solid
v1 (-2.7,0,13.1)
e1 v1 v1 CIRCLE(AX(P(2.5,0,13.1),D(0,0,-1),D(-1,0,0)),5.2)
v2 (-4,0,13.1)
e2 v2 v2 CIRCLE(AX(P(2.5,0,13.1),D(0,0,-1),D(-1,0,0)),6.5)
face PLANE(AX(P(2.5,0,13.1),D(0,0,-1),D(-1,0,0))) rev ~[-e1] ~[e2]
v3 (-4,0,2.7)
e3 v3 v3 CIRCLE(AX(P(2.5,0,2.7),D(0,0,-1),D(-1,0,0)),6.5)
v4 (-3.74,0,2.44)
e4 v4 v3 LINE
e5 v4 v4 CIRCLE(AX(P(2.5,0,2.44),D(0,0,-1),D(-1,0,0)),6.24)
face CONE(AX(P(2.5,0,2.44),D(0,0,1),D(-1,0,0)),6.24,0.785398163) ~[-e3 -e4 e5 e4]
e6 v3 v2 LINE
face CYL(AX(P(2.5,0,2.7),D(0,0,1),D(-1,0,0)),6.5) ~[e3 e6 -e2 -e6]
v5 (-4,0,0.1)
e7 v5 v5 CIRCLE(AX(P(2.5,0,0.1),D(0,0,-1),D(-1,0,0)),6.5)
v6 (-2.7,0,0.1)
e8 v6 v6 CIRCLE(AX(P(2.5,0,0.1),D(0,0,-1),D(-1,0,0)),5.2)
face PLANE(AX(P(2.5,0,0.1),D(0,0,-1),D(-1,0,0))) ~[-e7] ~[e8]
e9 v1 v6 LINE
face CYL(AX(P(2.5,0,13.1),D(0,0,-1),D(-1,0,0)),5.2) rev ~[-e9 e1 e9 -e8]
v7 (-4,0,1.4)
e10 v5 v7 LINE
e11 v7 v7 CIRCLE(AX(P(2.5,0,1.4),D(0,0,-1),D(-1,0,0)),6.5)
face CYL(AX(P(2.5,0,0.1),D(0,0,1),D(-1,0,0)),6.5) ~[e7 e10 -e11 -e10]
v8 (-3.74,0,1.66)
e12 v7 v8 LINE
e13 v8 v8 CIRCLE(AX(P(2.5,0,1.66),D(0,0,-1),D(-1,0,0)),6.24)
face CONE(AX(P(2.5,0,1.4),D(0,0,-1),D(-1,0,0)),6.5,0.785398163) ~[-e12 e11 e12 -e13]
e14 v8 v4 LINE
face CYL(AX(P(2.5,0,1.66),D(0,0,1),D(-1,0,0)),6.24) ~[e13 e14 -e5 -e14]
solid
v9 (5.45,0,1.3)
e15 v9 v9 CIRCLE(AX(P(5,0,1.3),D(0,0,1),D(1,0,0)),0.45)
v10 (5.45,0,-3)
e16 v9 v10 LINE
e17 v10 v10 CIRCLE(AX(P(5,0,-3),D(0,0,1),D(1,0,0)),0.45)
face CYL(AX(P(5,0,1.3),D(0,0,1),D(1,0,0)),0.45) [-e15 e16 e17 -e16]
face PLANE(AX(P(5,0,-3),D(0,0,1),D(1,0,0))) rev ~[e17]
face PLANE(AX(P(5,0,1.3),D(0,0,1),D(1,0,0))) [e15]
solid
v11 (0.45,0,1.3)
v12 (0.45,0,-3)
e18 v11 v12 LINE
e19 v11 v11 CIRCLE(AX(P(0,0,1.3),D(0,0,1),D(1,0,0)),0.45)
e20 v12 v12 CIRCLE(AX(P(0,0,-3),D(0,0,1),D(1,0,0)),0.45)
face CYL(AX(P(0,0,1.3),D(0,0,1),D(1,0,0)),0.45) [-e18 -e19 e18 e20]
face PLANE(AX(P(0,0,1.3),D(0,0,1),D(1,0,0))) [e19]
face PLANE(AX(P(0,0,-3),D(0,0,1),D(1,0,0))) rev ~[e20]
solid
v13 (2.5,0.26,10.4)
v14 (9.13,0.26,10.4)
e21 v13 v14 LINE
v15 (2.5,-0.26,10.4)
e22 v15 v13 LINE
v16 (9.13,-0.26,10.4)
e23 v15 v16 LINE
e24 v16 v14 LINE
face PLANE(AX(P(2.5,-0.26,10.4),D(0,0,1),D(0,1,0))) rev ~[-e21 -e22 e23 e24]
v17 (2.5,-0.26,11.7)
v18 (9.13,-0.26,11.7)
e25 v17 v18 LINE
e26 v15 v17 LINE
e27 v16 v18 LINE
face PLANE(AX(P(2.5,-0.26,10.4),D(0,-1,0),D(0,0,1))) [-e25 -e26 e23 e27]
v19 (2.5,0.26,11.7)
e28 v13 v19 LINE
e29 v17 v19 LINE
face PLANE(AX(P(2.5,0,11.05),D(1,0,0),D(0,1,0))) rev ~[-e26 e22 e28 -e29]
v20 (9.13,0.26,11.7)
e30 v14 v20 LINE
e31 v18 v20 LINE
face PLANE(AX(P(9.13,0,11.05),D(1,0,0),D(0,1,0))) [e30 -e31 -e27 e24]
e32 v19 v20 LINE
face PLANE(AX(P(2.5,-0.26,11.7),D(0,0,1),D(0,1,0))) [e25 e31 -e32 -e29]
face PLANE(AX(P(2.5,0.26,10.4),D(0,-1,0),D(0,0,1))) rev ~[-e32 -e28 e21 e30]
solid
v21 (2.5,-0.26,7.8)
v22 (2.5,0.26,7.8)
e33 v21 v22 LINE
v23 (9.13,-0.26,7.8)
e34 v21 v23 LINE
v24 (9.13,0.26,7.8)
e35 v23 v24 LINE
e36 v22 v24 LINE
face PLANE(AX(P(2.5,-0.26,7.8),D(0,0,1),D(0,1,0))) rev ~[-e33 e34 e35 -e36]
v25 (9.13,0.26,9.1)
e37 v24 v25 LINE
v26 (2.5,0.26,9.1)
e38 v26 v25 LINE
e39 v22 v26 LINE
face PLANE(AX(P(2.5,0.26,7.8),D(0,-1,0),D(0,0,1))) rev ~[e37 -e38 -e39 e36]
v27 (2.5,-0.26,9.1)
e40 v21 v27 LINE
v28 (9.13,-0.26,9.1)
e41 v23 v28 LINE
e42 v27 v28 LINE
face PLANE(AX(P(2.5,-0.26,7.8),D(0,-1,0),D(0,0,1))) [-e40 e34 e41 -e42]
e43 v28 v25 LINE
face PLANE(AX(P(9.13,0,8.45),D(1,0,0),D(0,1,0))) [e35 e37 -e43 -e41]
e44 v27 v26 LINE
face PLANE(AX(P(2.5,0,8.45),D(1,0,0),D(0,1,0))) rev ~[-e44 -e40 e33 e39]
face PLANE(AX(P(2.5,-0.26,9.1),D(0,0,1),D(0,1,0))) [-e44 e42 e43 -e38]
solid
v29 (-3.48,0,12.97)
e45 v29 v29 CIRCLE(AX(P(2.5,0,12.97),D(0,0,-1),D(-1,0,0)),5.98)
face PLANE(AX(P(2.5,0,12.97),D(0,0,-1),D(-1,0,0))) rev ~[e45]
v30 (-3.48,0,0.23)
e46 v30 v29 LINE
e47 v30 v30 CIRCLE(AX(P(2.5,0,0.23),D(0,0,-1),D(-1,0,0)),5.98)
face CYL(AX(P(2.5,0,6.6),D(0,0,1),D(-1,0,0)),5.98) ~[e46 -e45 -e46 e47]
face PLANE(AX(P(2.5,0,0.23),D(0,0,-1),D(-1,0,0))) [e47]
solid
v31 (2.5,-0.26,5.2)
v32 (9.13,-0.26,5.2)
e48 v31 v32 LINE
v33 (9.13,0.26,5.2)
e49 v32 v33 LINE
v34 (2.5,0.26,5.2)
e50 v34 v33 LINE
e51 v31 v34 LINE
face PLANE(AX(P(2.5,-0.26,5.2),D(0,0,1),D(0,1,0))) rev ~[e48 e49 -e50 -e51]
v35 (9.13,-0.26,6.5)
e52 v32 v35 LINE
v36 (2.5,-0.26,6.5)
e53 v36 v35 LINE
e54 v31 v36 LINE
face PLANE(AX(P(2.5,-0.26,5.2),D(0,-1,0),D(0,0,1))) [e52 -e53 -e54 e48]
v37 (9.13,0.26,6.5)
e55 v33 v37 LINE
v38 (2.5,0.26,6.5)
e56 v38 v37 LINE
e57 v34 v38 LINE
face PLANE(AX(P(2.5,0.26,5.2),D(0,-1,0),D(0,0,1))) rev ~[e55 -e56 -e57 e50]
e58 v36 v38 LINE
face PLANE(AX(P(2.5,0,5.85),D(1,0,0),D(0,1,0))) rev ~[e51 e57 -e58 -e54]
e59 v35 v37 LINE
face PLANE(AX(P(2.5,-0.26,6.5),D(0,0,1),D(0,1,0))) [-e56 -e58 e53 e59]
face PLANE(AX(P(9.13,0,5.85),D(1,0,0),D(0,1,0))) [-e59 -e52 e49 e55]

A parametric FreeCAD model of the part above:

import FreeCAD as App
import Part
import Sketcher
from FreeCAD import Vector


def add_polygon(sketch, points):
    """Adds a closed chain of lines whose ends are joined by coincident constraints."""
    first, n = sketch.GeometryCount, len(points)
    for a, b in zip(points, points[1:] + points[:1]):
        sketch.addGeometry(Part.LineSegment(App.Vector(*a, 0), App.Vector(*b, 0)), False)
    for i in range(n):
        sketch.addConstraint(Sketcher.Constraint("Coincident", first + i, 2, first + (i + 1) % n, 1))

doc = App.newDocument("Part")
body = doc.addObject("PartDesign::Body", "Body")

sketch1 = body.newObject("Sketcher::SketchObject", "Sketch")
sketch1.AttachmentSupport = (doc.getObject("XZ_Plane"), [""])
sketch1.MapMode = "FlatFace"
add_polygon(sketch1, [(-4, 1.4), (-4, 0.1), (-2.7, 0.1), (-2.7, 13.1), (-4, 13.1), (-4, 2.7), (-3.74, 2.44), (-3.74, 1.66)])
sketch1.addGeometry(Part.LineSegment(Vector(2.5, 13.1, 0), Vector(2.5, 0.1, 0)), True)
sketch1.addConstraint(Sketcher.Constraint("Vertical", 0))
sketch1.addConstraint(Sketcher.Constraint("Horizontal", 1))
sketch1.addConstraint(Sketcher.Constraint("Vertical", 2))
sketch1.addConstraint(Sketcher.Constraint("Horizontal", 3))
sketch1.addConstraint(Sketcher.Constraint("Vertical", 4))
sketch1.addConstraint(Sketcher.Constraint("Vertical", 6))
sketch1.addConstraint(Sketcher.Constraint("Vertical", 8))
sketch1.addConstraint(Sketcher.Constraint("Perpendicular", 5, 7))
sketch1.addConstraint(Sketcher.Constraint("Horizontal", 3, 2, 8, 1))
sketch1.addConstraint(Sketcher.Constraint("Horizontal", 1, 2, 8, 2))
sketch1.addConstraint(Sketcher.Constraint("Vertical", 0, 2, 3, 2))
sketch1.addConstraint(Sketcher.Constraint("Equal", 3, 0))
sketch1.addConstraint(Sketcher.Constraint("Equal", 5, 7))
sketch1.addConstraint(Sketcher.Constraint("DistanceY", 2, 1, 2, 2, 13.0))
sketch1.addConstraint(Sketcher.Constraint("DistanceX", 1, 1, 1, 2, 1.3))
sketch1.addConstraint(Sketcher.Constraint("DistanceY", 4, 2, 4, 1, 10.4))
sketch1.addConstraint(Sketcher.Constraint("DistanceX", 0, 2, -1, 1, 4.0))
sketch1.addConstraint(Sketcher.Constraint("DistanceY", 6, 2, 6, 1, 0.78))
sketch1.addConstraint(Sketcher.Constraint("DistanceY", -1, 1, 0, 2, 0.1))
sketch1.addConstraint(Sketcher.Constraint("DistanceX", -1, 1, 8, 1, 2.5))
revolution = body.newObject("PartDesign::Revolution", "Revolution")
revolution.Profile = sketch1
revolution.ReferenceAxis = (sketch1, ["Axis0"])
revolution.Angle = 360
body2 = doc.addObject("PartDesign::Body", "Body001")

sketch2 = body2.newObject("Sketcher::SketchObject", "Sketch001")
sketch2.AttachmentSupport = (doc.getObject("XZ_Plane001"), [""])
sketch2.MapMode = "FlatFace"
add_polygon(sketch2, [(-3.48, 12.97), (-3.48, 0.23), (2.5, 0.23), (2.5, 12.97)])
sketch2.addGeometry(Part.LineSegment(Vector(2.5, 12.97, 0), Vector(2.5, 0.23, 0)), True)
sketch2.addConstraint(Sketcher.Constraint("Vertical", 0))
sketch2.addConstraint(Sketcher.Constraint("Horizontal", 1))
sketch2.addConstraint(Sketcher.Constraint("Vertical", 2))
sketch2.addConstraint(Sketcher.Constraint("Horizontal", 3))
sketch2.addConstraint(Sketcher.Constraint("Vertical", 4))
sketch2.addConstraint(Sketcher.Constraint("Coincident", 4, 1, 2, 2))
sketch2.addConstraint(Sketcher.Constraint("Horizontal", 0, 2, 4, 2))
sketch2.addConstraint(Sketcher.Constraint("DistanceX", 1, 1, 1, 2, 5.98))
sketch2.addConstraint(Sketcher.Constraint("DistanceY", 0, 2, 0, 1, 12.74))
sketch2.addConstraint(Sketcher.Constraint("DistanceX", -1, 1, 1, 2, 2.5))
sketch2.addConstraint(Sketcher.Constraint("DistanceY", -1, 1, 0, 2, 0.23))
revolution2 = body2.newObject("PartDesign::Revolution", "Revolution001")
revolution2.Profile = sketch2
revolution2.ReferenceAxis = (sketch2, ["Axis0"])
revolution2.Angle = 360
body3 = doc.addObject("PartDesign::Body", "Body002")
body3.AllowCompound = True

sketch3 = body3.newObject("Sketcher::SketchObject", "Sketch002")
sketch3.AttachmentSupport = (doc.getObject("XY_Plane002"), [""])
sketch3.MapMode = "FlatFace"
sketch3.AttachmentOffset = App.Placement(Vector(0, 0, 1.3), App.Rotation())
sketch3.addGeometry(Part.Circle(Vector(0, 0, 0), Vector(0, 0, 1), 0.45), False)
sketch3.addGeometry(Part.Circle(Vector(5, 0, 0), Vector(0, 0, 1), 0.45), False)
sketch3.addConstraint(Sketcher.Constraint("Coincident", 0, 3, -1, 1))
sketch3.addConstraint(Sketcher.Constraint("Equal", 0, 1))
sketch3.addConstraint(Sketcher.Constraint("PointOnObject", 1, 3, -1))
sketch3.addConstraint(Sketcher.Constraint("Diameter", 0, 0.9))
sketch3.addConstraint(Sketcher.Constraint("DistanceX", -1, 1, 1, 3, 5.0))
pad1 = body3.newObject("PartDesign::Pad", "Pad")
pad1.Profile = sketch3
pad1.Length = 4.3
pad1.Reversed = True
body4 = doc.addObject("PartDesign::Body", "Body003")
body4.AllowCompound = True

sketch4 = body4.newObject("Sketcher::SketchObject", "Sketch003")
sketch4.AttachmentSupport = (doc.getObject("YZ_Plane003"), [""])
sketch4.MapMode = "FlatFace"
sketch4.AttachmentOffset = App.Placement(Vector(0, 0, 2.5), App.Rotation())
add_polygon(sketch4, [(-0.26, 6.5), (-0.26, 5.2), (0.26, 5.2), (0.26, 6.5)])
add_polygon(sketch4, [(-0.26, 9.1), (-0.26, 7.8), (0.26, 7.8), (0.26, 9.1)])
add_polygon(sketch4, [(-0.26, 11.7), (-0.26, 10.4), (0.26, 10.4), (0.26, 11.7)])
sketch4.addConstraint(Sketcher.Constraint("Vertical", 0))
sketch4.addConstraint(Sketcher.Constraint("Horizontal", 1))
sketch4.addConstraint(Sketcher.Constraint("Vertical", 2))
sketch4.addConstraint(Sketcher.Constraint("Horizontal", 3))
sketch4.addConstraint(Sketcher.Constraint("Vertical", 4))
sketch4.addConstraint(Sketcher.Constraint("Horizontal", 5))
sketch4.addConstraint(Sketcher.Constraint("Vertical", 6))
sketch4.addConstraint(Sketcher.Constraint("Horizontal", 7))
sketch4.addConstraint(Sketcher.Constraint("Vertical", 8))
sketch4.addConstraint(Sketcher.Constraint("Horizontal", 9))
sketch4.addConstraint(Sketcher.Constraint("Vertical", 10))
sketch4.addConstraint(Sketcher.Constraint("Horizontal", 11))
sketch4.addConstraint(Sketcher.Constraint("Vertical", 3, 2, 4, 2))
sketch4.addConstraint(Sketcher.Constraint("Vertical", 2, 2, 5, 2))
sketch4.addConstraint(Sketcher.Constraint("Vertical", 7, 2, 8, 2))
sketch4.addConstraint(Sketcher.Constraint("Vertical", 6, 2, 9, 2))
sketch4.addConstraint(Sketcher.Constraint("Equal", 2, 4))
sketch4.addConstraint(Sketcher.Constraint("Equal", 6, 8))
sketch4.addConstraint(Sketcher.Constraint("DistanceY", 0, 2, 0, 1, 1.3))
sketch4.addConstraint(Sketcher.Constraint("DistanceX", 1, 1, 1, 2, 0.52))
sketch4.addConstraint(Sketcher.Constraint("DistanceY", -1, 1, 0, 2, 5.2))
sketch4.addConstraint(Sketcher.Constraint("DistanceY", -1, 1, 4, 2, 7.8))
sketch4.addConstraint(Sketcher.Constraint("DistanceY", -1, 1, 8, 2, 10.4))
sketch4.addConstraint(Sketcher.Constraint("DistanceX", 0, 2, -1, 1, 0.26))
pad2 = body4.newObject("PartDesign::Pad", "Pad001")
pad2.Profile = sketch4
pad2.Length = 6.63

doc.recompute()
